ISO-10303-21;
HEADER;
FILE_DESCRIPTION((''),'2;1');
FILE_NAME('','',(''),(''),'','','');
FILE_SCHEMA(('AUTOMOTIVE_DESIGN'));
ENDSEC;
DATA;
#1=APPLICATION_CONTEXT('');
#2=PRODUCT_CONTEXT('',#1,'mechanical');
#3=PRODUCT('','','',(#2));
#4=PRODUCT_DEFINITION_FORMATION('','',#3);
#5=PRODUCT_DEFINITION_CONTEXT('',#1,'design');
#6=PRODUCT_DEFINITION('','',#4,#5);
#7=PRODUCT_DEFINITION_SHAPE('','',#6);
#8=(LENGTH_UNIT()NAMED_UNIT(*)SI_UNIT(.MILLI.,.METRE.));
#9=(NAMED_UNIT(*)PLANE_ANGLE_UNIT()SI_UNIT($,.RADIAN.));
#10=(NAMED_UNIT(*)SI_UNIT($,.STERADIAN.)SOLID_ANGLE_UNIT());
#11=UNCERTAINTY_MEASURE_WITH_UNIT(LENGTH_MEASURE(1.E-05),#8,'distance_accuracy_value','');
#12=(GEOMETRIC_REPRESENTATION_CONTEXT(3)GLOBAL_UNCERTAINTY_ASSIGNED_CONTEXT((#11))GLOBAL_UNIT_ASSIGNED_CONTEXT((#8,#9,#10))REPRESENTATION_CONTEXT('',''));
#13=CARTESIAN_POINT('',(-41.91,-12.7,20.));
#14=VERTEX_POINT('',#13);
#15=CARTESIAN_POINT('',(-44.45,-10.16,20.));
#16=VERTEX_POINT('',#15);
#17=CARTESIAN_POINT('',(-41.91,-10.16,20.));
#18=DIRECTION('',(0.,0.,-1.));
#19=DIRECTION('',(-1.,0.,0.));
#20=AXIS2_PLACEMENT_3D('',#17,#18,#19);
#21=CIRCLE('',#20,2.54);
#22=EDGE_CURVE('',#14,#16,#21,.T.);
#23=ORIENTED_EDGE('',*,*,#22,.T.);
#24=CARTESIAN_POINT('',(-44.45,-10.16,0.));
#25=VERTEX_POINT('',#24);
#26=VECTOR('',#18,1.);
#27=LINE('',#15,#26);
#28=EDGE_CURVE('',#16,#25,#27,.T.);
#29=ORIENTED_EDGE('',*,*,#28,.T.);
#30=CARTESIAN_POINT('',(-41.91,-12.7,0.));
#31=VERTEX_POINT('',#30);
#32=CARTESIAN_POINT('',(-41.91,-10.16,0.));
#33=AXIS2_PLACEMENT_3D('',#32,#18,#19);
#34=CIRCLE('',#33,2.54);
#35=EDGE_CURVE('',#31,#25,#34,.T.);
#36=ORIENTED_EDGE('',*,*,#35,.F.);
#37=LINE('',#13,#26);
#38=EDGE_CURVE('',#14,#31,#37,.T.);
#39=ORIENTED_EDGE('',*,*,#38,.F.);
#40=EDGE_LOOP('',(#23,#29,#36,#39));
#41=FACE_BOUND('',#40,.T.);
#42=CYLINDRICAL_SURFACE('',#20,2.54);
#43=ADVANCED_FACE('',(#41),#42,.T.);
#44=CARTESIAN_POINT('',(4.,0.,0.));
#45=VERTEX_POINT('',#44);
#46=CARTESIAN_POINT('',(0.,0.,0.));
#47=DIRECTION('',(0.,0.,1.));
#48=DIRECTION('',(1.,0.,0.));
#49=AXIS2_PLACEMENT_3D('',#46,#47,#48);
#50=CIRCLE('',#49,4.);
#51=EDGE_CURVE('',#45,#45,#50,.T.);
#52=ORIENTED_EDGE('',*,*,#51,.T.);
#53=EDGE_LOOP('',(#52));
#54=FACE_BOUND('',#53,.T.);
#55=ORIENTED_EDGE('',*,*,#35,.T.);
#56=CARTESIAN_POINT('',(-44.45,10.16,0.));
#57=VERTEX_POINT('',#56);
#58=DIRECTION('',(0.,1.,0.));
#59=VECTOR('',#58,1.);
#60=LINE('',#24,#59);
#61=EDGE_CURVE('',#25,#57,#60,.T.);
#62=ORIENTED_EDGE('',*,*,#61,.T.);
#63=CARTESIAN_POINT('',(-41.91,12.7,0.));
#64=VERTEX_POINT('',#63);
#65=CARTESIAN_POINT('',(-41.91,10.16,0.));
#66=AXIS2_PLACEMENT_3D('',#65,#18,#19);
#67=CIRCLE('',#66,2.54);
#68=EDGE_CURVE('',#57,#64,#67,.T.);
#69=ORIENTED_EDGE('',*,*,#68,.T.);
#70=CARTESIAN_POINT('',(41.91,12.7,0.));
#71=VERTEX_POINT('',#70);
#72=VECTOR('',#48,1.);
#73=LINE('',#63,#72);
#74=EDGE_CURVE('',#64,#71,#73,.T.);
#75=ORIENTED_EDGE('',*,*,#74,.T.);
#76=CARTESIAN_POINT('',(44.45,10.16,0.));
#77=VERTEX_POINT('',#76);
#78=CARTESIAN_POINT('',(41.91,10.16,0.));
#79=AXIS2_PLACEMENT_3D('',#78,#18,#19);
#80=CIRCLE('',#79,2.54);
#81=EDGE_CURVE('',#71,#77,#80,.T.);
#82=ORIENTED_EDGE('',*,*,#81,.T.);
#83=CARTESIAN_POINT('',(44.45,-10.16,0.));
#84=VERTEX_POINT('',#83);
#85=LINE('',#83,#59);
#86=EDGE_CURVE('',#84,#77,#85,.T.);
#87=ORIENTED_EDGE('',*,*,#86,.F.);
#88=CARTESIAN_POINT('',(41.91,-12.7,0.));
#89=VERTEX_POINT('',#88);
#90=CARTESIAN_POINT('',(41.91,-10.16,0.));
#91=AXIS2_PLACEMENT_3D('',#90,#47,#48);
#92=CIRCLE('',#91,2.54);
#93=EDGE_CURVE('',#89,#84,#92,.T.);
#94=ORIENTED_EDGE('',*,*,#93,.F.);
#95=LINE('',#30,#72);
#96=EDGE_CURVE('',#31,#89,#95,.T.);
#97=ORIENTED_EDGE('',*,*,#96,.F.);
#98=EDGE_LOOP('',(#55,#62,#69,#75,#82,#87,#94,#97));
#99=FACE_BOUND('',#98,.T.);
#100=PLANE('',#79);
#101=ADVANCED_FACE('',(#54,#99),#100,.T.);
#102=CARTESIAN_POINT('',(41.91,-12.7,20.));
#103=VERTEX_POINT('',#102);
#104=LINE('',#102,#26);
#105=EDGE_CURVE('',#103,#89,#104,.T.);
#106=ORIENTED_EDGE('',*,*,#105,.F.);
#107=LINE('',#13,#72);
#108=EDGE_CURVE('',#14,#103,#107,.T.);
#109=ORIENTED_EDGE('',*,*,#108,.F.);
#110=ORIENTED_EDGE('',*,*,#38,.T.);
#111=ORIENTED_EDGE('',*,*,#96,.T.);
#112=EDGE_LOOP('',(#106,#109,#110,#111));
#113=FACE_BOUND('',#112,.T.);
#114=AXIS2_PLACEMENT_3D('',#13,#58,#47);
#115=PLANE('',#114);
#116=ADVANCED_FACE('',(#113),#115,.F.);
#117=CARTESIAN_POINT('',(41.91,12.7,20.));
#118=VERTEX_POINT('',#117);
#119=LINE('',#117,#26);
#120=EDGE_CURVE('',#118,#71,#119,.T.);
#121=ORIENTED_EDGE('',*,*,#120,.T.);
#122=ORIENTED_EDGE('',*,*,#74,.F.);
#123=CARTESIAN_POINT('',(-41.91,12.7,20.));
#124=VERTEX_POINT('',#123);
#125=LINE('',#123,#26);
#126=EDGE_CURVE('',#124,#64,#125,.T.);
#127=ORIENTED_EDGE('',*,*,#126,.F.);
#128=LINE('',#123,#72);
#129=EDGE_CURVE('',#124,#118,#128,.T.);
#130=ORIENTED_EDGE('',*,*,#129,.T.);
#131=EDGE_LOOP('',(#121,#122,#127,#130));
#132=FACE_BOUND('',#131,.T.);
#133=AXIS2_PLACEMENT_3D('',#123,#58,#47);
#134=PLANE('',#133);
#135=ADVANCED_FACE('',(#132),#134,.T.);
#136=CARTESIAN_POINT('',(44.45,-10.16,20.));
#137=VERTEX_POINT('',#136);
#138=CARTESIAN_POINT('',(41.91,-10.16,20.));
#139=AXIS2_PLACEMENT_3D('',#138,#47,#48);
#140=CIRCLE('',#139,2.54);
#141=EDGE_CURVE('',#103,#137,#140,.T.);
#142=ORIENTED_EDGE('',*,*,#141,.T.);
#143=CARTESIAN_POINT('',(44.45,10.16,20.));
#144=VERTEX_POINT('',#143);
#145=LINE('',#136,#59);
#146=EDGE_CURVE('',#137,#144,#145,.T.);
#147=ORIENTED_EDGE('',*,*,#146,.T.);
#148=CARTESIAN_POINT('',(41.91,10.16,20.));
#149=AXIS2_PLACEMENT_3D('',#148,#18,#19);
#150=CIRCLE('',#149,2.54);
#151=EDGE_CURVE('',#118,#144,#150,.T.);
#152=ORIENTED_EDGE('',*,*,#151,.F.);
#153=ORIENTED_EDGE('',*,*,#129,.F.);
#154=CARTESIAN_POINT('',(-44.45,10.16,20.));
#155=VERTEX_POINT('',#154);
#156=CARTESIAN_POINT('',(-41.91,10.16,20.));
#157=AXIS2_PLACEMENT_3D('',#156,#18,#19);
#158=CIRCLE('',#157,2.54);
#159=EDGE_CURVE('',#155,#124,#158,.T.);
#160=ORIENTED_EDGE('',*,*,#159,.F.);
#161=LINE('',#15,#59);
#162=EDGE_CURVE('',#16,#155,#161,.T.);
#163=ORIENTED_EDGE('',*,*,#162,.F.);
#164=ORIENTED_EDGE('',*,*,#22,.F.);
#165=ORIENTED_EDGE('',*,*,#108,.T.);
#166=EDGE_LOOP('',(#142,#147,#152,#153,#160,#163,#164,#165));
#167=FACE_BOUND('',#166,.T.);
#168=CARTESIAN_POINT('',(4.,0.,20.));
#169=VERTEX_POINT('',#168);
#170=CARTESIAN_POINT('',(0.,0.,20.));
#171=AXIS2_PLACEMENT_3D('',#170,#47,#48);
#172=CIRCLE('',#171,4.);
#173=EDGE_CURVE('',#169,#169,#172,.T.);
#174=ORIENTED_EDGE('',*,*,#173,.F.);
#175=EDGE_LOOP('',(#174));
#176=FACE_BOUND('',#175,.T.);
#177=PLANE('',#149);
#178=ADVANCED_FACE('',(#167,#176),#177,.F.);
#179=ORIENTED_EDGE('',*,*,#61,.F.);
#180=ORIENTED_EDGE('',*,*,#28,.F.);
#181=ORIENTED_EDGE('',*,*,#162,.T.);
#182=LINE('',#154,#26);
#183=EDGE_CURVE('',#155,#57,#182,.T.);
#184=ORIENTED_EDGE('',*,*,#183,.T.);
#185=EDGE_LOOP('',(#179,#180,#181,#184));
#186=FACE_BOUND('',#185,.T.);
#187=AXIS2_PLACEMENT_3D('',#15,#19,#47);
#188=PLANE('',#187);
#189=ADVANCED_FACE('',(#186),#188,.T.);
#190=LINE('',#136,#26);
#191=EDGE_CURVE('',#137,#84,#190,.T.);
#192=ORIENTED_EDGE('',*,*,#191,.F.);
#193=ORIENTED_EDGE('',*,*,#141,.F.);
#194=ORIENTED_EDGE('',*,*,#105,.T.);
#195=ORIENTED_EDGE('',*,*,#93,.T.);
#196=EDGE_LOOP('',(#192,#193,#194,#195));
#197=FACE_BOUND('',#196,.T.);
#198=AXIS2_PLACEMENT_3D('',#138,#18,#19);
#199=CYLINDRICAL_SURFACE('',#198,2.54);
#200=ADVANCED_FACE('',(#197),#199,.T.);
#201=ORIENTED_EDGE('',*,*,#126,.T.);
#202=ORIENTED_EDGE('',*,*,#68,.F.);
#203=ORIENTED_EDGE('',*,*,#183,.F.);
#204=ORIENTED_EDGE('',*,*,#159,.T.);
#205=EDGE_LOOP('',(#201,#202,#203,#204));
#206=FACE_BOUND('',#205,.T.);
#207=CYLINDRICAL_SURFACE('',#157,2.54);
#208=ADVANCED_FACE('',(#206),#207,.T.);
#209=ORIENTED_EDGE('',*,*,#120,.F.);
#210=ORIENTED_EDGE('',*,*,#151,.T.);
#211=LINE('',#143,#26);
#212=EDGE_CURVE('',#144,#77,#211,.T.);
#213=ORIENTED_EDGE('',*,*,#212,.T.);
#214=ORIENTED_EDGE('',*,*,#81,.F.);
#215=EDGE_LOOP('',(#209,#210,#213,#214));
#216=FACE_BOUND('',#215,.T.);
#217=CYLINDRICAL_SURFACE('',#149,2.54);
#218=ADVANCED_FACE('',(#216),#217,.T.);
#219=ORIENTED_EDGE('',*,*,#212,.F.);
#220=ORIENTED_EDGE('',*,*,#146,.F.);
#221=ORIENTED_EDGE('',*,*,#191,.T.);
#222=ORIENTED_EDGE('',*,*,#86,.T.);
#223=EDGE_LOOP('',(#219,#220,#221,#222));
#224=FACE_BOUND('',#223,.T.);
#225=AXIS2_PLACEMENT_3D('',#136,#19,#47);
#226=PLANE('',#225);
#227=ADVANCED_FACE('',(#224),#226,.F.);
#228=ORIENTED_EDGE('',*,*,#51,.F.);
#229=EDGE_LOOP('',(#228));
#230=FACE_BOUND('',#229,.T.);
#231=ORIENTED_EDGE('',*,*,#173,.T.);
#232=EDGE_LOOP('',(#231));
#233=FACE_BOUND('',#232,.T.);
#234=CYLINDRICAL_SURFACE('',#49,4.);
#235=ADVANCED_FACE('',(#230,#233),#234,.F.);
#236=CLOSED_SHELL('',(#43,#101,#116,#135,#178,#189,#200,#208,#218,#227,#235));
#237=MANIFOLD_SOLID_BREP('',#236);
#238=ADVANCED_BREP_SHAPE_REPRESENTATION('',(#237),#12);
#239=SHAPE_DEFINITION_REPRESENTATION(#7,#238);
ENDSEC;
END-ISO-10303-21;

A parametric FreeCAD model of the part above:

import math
import FreeCAD as App
import Part
import Sketcher
Q = App.Units.Quantity

doc = App.newDocument("Part")
body = doc.addObject("PartDesign::Body", "Body")

# Sketch on XY plane
sketch1 = body.newObject("Sketcher::SketchObject", "Sketch")
sketch1.AttachmentSupport = (doc.getObject("XY_Plane"), [""])
sketch1.MapMode = "FlatFace"
sketch1.addGeometry([
    Part.LineSegment(App.Vector(-41.9, -12.7, 0), App.Vector(41.9, -12.7, 0)),  # 0
    Part.ArcOfCircle(Part.Circle(App.Vector(41.9, -10.2, 0), App.Vector(0, 0, 1), 2.5), math.radians(-90), math.radians(0)),  # 1
    Part.LineSegment(App.Vector(44.5, -10.2, 0), App.Vector(44.5, 10.2, 0)),  # 2
    Part.ArcOfCircle(Part.Circle(App.Vector(41.9, 10.2, 0), App.Vector(0, 0, 1), 2.5), math.radians(0), math.radians(90)),  # 3
    Part.LineSegment(App.Vector(41.9, 12.7, 0), App.Vector(-41.9, 12.7, 0)),  # 4
    Part.ArcOfCircle(Part.Circle(App.Vector(-41.9, 10.2, 0), App.Vector(0, 0, 1), 2.5), math.radians(90), math.radians(180)),  # 5
    Part.LineSegment(App.Vector(-44.5, 10.2, 0), App.Vector(-44.5, -10.2, 0)),  # 6
    Part.ArcOfCircle(Part.Circle(App.Vector(-41.9, -10.2, 0), App.Vector(0, 0, 1), 2.5), math.radians(-180), math.radians(-90)),  # 7
], False)
sketch1.addConstraint([
    Sketcher.Constraint("Tangent", 0, 2, 1, 1),
    Sketcher.Constraint("Tangent", 1, 2, 2, 1),
    Sketcher.Constraint("Tangent", 2, 2, 3, 1),
    Sketcher.Constraint("Tangent", 3, 2, 4, 1),
    Sketcher.Constraint("Tangent", 4, 2, 5, 1),
    Sketcher.Constraint("Tangent", 5, 2, 6, 1),
    Sketcher.Constraint("Tangent", 6, 2, 7, 1),
    Sketcher.Constraint("Tangent", 7, 2, 0, 1),
    Sketcher.Constraint("Horizontal", 0),
    Sketcher.Constraint("Vertical", 2),
    Sketcher.Constraint("Horizontal", 4),
    Sketcher.Constraint("Vertical", 6),
    Sketcher.Constraint("Equal", 1, 3),
    Sketcher.Constraint("Equal", 3, 5),
    Sketcher.Constraint("Equal", 5, 7),
    Sketcher.Constraint("Symmetric", 1, 3, 5, 3, -1, 1),
    Sketcher.Constraint("Radius", 1, Q("0.1 in")),
    Sketcher.Constraint("DistanceX", 0, 1, 0, 2, Q("3.3 in")),
    Sketcher.Constraint("DistanceY", 2, 1, 2, 2, Q("0.8 in")),
])
pad1 = body.newObject("PartDesign::Pad", "Pad")
pad1.Profile = sketch1
pad1.Length = 20

# Sketch on XY plane
sketch2 = body.newObject("Sketcher::SketchObject", "Sketch001")
sketch2.AttachmentSupport = (doc.getObject("XY_Plane"), [""])
sketch2.MapMode = "FlatFace"
sketch2.AttachmentOffset = App.Placement(App.Vector(0, 0, 20), App.Rotation())
sketch2.addGeometry(Part.Circle(App.Vector(0, 0, 0), App.Vector(0, 0, 1), 4), False)
sketch2.addConstraint([
    Sketcher.Constraint("Coincident", 0, 3, -1, 1),
    Sketcher.Constraint("Diameter", 0, Q("8 mm")),
])
pocket1 = body.newObject("PartDesign::Pocket", "Pocket")
pocket1.Profile = sketch2
pocket1.Length = 20

doc.recompute()
